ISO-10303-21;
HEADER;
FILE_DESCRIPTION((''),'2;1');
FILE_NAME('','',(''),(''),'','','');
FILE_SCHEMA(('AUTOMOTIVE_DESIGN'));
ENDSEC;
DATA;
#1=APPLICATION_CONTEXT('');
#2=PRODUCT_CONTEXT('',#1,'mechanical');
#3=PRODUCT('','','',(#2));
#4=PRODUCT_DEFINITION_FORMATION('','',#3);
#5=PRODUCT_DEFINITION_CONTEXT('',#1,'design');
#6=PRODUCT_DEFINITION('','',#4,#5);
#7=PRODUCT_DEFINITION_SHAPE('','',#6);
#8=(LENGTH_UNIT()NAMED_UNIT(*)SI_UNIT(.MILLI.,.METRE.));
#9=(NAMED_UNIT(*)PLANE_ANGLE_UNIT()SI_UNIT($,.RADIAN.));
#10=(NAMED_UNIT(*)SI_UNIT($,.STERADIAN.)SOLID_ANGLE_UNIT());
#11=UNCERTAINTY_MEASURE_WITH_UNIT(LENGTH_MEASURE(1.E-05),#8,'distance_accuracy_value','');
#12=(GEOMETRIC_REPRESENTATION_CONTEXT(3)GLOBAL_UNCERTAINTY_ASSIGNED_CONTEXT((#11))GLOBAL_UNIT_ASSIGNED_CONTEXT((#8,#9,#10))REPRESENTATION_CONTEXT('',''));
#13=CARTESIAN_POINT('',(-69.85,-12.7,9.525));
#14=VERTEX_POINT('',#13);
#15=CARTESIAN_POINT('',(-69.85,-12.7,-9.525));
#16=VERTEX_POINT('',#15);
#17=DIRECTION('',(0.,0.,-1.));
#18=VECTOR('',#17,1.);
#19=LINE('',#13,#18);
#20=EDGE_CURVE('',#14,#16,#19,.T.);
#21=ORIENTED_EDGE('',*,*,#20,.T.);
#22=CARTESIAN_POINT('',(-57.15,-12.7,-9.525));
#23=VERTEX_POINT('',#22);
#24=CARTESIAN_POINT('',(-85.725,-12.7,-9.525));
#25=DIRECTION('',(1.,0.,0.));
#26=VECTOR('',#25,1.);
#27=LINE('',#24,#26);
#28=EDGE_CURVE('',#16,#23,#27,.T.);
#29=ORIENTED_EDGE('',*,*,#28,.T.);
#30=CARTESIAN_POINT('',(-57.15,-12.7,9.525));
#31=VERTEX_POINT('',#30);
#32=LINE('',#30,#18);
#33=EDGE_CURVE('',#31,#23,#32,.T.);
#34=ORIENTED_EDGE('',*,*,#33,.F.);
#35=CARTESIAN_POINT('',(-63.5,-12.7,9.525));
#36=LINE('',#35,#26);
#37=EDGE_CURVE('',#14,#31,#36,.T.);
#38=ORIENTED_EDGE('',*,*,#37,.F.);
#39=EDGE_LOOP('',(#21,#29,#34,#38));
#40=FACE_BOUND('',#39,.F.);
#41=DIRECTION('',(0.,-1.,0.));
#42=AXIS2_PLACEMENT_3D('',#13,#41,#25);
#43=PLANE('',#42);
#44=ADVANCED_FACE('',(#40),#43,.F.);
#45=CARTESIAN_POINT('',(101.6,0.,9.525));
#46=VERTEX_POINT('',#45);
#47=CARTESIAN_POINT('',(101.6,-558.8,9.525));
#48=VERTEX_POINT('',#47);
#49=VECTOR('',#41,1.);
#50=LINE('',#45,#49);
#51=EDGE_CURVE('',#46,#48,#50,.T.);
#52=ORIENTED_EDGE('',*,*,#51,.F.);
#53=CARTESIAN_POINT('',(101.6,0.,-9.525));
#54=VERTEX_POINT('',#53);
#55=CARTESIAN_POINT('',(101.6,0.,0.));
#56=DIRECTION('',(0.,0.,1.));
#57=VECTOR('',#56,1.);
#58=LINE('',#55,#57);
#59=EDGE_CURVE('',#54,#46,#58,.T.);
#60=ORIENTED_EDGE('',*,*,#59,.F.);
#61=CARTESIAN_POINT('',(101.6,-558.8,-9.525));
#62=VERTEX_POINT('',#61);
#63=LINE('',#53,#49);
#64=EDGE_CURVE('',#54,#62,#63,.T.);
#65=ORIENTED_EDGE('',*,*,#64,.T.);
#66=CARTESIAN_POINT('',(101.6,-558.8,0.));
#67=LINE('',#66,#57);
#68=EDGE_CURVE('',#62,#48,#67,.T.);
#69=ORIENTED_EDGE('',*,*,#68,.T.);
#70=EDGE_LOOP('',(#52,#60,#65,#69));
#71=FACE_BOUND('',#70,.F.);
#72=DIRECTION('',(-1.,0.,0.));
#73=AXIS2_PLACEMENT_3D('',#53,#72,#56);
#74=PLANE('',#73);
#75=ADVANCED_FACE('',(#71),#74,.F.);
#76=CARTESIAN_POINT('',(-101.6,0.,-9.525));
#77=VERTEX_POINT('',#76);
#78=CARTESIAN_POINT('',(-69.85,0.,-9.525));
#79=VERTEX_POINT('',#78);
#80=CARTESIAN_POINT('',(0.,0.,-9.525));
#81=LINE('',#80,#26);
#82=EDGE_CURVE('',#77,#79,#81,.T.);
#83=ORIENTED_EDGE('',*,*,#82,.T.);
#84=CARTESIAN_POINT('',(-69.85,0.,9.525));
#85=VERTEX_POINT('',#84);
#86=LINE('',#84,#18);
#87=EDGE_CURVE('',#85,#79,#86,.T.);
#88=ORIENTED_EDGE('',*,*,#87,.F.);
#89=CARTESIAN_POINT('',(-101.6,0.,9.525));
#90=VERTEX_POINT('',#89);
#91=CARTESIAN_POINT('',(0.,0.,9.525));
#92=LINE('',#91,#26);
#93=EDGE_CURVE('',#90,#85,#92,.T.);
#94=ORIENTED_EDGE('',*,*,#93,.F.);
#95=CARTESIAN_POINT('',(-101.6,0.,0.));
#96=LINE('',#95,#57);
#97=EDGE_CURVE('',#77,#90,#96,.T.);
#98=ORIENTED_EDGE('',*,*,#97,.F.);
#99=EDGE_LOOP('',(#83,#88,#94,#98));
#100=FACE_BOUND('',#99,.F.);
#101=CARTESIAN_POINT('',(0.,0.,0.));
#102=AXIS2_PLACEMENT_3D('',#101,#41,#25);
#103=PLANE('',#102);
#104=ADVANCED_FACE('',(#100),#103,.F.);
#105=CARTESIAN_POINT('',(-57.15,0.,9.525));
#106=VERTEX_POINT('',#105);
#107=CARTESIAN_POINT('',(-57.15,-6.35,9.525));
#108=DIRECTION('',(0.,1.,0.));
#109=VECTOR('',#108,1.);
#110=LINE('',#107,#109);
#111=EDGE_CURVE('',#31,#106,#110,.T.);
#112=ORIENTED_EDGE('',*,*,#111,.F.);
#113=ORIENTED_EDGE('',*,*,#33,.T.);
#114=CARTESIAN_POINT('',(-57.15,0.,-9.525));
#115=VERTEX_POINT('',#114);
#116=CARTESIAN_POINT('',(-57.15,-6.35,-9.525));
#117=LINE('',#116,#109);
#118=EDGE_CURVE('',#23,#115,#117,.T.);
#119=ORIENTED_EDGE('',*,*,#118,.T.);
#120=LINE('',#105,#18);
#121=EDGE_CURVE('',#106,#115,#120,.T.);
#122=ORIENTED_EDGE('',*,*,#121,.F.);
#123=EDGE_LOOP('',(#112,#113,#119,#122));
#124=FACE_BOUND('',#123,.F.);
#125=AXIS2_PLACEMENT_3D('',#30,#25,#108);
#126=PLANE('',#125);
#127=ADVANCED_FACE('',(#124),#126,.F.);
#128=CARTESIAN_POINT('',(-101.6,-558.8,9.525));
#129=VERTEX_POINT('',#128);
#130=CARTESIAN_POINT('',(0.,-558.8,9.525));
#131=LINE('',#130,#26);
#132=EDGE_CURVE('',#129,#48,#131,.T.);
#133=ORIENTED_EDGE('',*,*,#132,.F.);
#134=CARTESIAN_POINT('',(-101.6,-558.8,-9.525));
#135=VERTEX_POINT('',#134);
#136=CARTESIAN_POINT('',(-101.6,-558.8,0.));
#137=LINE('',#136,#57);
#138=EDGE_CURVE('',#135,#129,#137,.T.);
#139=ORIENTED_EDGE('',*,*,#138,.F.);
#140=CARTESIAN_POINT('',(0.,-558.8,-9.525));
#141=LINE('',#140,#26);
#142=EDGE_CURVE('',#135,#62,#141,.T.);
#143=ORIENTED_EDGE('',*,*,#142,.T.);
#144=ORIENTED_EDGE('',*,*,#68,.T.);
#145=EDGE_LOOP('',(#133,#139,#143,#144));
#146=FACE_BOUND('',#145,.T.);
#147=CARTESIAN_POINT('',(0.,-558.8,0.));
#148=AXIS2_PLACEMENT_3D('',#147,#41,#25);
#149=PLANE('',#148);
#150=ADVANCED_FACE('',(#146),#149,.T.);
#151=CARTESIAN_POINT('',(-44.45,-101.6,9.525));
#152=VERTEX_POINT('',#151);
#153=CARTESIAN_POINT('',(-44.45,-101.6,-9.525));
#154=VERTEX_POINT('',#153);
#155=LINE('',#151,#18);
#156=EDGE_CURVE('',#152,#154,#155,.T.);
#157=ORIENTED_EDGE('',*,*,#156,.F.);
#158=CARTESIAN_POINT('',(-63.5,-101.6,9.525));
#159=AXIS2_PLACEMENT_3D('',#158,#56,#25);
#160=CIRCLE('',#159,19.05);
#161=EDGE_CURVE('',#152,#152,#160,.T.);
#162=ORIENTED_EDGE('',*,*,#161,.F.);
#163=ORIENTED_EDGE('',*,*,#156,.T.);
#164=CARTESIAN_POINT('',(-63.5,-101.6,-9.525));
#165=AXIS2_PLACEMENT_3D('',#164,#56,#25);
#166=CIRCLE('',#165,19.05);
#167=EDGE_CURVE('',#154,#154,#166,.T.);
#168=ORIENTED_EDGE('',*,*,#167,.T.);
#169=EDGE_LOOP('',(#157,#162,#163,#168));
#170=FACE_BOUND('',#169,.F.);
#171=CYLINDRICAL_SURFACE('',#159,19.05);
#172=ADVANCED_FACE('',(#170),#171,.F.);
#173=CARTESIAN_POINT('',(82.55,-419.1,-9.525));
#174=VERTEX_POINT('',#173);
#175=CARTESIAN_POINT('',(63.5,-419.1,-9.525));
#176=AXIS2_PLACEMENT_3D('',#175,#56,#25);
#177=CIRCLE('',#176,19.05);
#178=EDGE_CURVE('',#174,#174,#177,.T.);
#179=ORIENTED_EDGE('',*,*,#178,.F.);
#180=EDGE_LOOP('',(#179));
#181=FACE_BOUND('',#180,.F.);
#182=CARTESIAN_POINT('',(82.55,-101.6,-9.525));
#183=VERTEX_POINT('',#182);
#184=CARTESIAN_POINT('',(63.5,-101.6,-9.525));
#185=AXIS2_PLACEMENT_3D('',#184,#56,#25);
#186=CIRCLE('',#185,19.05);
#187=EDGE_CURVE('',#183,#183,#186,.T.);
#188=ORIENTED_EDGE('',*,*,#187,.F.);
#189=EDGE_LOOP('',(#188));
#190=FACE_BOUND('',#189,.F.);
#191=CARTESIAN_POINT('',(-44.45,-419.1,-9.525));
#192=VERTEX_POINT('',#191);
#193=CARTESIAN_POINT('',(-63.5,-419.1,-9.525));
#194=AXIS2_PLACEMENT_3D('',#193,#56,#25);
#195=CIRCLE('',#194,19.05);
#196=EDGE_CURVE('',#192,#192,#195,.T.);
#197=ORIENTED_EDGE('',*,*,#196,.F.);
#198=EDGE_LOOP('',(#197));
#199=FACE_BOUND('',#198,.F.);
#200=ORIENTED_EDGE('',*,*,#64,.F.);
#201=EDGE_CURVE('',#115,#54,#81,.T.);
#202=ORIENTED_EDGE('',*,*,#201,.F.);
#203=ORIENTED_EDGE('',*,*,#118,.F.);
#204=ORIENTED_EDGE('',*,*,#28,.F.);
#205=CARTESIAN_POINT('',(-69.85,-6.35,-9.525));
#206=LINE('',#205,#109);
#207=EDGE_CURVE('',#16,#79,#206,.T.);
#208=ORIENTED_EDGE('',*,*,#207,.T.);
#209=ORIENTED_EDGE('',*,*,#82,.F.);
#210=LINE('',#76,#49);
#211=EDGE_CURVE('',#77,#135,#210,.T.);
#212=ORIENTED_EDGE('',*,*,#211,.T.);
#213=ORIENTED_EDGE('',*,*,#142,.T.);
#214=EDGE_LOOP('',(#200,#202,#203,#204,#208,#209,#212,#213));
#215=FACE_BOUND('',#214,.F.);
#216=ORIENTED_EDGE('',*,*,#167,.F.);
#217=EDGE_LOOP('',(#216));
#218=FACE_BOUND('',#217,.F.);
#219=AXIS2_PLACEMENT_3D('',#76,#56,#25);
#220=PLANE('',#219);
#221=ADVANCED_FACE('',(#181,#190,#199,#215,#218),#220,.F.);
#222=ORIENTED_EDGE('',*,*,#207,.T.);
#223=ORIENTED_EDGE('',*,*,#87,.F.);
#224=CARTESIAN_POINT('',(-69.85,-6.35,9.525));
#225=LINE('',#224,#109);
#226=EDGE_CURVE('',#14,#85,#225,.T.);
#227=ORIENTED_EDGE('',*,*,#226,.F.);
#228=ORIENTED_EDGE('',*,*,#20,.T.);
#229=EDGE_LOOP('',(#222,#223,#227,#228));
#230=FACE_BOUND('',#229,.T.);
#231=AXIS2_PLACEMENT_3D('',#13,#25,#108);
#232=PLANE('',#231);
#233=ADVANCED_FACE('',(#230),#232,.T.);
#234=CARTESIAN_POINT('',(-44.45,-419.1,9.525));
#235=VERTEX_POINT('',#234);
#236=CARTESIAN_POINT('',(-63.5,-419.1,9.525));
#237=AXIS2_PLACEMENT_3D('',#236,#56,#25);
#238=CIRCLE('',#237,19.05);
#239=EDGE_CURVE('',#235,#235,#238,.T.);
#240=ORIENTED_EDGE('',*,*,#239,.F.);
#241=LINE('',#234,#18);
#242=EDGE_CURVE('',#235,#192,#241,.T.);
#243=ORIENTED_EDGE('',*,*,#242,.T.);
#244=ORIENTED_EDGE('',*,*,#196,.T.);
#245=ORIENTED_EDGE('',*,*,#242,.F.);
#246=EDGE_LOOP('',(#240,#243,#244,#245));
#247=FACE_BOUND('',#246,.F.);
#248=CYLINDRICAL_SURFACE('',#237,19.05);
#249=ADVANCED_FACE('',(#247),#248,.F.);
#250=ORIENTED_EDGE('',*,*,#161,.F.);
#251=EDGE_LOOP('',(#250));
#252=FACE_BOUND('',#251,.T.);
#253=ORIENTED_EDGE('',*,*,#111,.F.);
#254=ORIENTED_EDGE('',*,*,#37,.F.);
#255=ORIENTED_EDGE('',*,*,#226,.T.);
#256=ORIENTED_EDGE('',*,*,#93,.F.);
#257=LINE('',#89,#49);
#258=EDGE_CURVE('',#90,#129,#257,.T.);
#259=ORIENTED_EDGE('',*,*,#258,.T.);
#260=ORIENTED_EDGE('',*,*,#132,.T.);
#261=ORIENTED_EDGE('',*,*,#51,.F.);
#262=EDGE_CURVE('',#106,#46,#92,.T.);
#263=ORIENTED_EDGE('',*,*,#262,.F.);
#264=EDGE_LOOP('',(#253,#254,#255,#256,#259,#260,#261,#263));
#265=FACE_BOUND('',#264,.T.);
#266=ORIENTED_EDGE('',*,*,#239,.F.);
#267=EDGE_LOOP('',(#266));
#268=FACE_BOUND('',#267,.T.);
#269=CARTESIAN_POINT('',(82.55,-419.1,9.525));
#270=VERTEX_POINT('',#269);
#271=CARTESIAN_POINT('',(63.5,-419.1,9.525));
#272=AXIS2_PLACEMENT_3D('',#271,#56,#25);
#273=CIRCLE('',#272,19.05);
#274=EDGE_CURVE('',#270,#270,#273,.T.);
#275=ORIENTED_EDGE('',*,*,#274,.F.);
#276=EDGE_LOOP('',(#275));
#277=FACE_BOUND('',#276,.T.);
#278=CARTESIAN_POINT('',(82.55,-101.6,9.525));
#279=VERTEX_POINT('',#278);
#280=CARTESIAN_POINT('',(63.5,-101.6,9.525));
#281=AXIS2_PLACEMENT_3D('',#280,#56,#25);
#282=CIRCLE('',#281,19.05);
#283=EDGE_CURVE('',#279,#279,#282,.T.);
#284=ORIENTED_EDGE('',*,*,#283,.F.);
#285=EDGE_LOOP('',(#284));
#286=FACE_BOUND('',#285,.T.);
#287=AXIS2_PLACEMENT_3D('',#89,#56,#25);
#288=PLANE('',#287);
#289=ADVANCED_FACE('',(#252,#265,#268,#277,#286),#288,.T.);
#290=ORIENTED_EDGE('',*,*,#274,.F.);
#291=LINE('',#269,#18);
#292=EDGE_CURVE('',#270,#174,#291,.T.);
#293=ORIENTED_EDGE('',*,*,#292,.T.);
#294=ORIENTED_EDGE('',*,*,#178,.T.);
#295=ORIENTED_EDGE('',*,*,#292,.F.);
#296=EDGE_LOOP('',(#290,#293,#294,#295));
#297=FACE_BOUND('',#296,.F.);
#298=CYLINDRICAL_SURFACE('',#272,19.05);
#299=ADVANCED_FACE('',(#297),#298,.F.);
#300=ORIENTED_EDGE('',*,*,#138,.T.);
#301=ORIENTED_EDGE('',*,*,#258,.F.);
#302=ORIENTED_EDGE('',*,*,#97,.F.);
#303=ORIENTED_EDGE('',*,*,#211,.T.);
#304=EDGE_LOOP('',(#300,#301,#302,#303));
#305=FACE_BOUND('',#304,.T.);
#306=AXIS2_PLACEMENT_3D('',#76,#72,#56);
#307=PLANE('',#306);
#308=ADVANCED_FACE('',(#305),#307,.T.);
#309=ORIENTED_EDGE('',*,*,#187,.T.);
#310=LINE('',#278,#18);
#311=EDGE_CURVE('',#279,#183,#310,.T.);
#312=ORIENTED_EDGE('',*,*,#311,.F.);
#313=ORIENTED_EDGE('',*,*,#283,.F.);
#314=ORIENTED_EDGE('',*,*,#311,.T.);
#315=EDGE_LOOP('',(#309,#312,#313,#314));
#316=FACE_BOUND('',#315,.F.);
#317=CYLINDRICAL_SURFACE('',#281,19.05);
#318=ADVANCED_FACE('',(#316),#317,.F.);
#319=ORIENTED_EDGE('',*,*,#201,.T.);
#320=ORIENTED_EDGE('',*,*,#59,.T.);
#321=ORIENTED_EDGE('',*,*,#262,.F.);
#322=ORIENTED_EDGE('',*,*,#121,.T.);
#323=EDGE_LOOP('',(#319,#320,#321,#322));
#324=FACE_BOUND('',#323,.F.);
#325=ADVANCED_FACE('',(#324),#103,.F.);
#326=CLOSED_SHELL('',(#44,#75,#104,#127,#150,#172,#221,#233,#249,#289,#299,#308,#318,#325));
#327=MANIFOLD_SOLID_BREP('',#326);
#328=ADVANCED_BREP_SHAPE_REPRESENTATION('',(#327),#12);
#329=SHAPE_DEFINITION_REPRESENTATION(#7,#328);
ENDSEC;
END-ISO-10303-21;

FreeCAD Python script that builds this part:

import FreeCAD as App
import Part
import Sketcher
from FreeCAD import Vector
Q = App.Units.Quantity


def add_polygon(sketch, points):
    """Adds a closed chain of lines whose ends are joined by coincident constraints."""
    first, n = sketch.GeometryCount, len(points)
    for a, b in zip(points, points[1:] + points[:1]):
        sketch.addGeometry(Part.LineSegment(App.Vector(*a, 0), App.Vector(*b, 0)), False)
    for i in range(n):
        sketch.addConstraint(Sketcher.Constraint("Coincident", first + i, 2, first + (i + 1) % n, 1))

doc = App.newDocument("Part")
body = doc.addObject("PartDesign::Body", "Body")

# Sketch on XZ plane
sketch1 = body.newObject("Sketcher::SketchObject", "Sketch")
sketch1.AttachmentSupport = (doc.getObject("XZ_Plane"), [""])
sketch1.MapMode = "FlatFace"
add_polygon(sketch1, [(-102, 10), (-102, -10), (102, -10), (102, 10)])  # lines 0-3
sketch1.addConstraint([
    Sketcher.Constraint("Vertical", 0),
    Sketcher.Constraint("Horizontal", 1),
    Sketcher.Constraint("Vertical", 2),
    Sketcher.Constraint("Horizontal", 3),
    Sketcher.Constraint("Symmetric", 0, 2, 2, 2, -1, 1),
    Sketcher.Constraint("DistanceX", 1, 1, 1, 2, Q("8 in")),
    Sketcher.Constraint("DistanceY", 0, 2, 0, 1, Q("0.75 in")),
])
pad1 = body.newObject("PartDesign::Pad", "Pad")
pad1.Profile = sketch1
pad1.Length = Q("22 in")

# Sketch on XY plane
sketch2 = body.newObject("Sketcher::SketchObject", "Sketch001")
sketch2.AttachmentSupport = (doc.getObject("XY_Plane"), [""])
sketch2.MapMode = "FlatFace"
sketch2.AttachmentOffset = App.Placement(Vector(0, 0, 0.375 * 25.4), App.Rotation())
sketch2.addGeometry(Part.Circle(Vector(-64, -102, 0), Vector(0, 0, 1), 19), False)  # 0
sketch2.addGeometry(Part.Circle(Vector(64, -102, 0), Vector(0, 0, 1), 19), False)  # 1
sketch2.addGeometry(Part.Circle(Vector(-64, -419, 0), Vector(0, 0, 1), 19), False)  # 2
sketch2.addGeometry(Part.Circle(Vector(64, -419, 0), Vector(0, 0, 1), 19), False)  # 3
add_polygon(sketch2, [(-70, 0), (-70, -13), (-57, -13), (-57, 0)])  # lines 4-7
sketch2.addConstraint([
    Sketcher.Constraint("Vertical", 4),
    Sketcher.Constraint("Horizontal", 5),
    Sketcher.Constraint("Vertical", 6),
    Sketcher.Constraint("Horizontal", 7),
    Sketcher.Constraint("Equal", 0, 1),
    Sketcher.Constraint("Equal", 1, 2),
    Sketcher.Constraint("Equal", 2, 3),
    Sketcher.Constraint("Symmetric", 0, 3, 1, 3, -2),
    Sketcher.Constraint("Symmetric", 2, 3, 3, 3, -2),
    Sketcher.Constraint("PointOnObject", 6, 2, -1),
    Sketcher.Constraint("Vertical", 0, 3, 2, 3),
    Sketcher.Constraint("Equal", 7, 4),
    Sketcher.Constraint("Diameter", 0, Q("1.5 in")),
    Sketcher.Constraint("DistanceX", 5, 1, 5, 2, Q("0.5 in")),
    Sketcher.Constraint("DistanceY", 0, 3, -1, 1, Q("4 in")),
    Sketcher.Constraint("DistanceX", 0, 3, 1, 3, Q("5 in")),
    Sketcher.Constraint("DistanceY", 2, 3, 4, 2, Q("16 in")),
    Sketcher.Constraint("DistanceX", 4, 2, -1, 1, Q("2.75 in")),
])
pocket1 = body.newObject("PartDesign::Pocket", "Pocket")
pocket1.Profile = sketch2
pocket1.Length = Q("1 in")

doc.recompute()
